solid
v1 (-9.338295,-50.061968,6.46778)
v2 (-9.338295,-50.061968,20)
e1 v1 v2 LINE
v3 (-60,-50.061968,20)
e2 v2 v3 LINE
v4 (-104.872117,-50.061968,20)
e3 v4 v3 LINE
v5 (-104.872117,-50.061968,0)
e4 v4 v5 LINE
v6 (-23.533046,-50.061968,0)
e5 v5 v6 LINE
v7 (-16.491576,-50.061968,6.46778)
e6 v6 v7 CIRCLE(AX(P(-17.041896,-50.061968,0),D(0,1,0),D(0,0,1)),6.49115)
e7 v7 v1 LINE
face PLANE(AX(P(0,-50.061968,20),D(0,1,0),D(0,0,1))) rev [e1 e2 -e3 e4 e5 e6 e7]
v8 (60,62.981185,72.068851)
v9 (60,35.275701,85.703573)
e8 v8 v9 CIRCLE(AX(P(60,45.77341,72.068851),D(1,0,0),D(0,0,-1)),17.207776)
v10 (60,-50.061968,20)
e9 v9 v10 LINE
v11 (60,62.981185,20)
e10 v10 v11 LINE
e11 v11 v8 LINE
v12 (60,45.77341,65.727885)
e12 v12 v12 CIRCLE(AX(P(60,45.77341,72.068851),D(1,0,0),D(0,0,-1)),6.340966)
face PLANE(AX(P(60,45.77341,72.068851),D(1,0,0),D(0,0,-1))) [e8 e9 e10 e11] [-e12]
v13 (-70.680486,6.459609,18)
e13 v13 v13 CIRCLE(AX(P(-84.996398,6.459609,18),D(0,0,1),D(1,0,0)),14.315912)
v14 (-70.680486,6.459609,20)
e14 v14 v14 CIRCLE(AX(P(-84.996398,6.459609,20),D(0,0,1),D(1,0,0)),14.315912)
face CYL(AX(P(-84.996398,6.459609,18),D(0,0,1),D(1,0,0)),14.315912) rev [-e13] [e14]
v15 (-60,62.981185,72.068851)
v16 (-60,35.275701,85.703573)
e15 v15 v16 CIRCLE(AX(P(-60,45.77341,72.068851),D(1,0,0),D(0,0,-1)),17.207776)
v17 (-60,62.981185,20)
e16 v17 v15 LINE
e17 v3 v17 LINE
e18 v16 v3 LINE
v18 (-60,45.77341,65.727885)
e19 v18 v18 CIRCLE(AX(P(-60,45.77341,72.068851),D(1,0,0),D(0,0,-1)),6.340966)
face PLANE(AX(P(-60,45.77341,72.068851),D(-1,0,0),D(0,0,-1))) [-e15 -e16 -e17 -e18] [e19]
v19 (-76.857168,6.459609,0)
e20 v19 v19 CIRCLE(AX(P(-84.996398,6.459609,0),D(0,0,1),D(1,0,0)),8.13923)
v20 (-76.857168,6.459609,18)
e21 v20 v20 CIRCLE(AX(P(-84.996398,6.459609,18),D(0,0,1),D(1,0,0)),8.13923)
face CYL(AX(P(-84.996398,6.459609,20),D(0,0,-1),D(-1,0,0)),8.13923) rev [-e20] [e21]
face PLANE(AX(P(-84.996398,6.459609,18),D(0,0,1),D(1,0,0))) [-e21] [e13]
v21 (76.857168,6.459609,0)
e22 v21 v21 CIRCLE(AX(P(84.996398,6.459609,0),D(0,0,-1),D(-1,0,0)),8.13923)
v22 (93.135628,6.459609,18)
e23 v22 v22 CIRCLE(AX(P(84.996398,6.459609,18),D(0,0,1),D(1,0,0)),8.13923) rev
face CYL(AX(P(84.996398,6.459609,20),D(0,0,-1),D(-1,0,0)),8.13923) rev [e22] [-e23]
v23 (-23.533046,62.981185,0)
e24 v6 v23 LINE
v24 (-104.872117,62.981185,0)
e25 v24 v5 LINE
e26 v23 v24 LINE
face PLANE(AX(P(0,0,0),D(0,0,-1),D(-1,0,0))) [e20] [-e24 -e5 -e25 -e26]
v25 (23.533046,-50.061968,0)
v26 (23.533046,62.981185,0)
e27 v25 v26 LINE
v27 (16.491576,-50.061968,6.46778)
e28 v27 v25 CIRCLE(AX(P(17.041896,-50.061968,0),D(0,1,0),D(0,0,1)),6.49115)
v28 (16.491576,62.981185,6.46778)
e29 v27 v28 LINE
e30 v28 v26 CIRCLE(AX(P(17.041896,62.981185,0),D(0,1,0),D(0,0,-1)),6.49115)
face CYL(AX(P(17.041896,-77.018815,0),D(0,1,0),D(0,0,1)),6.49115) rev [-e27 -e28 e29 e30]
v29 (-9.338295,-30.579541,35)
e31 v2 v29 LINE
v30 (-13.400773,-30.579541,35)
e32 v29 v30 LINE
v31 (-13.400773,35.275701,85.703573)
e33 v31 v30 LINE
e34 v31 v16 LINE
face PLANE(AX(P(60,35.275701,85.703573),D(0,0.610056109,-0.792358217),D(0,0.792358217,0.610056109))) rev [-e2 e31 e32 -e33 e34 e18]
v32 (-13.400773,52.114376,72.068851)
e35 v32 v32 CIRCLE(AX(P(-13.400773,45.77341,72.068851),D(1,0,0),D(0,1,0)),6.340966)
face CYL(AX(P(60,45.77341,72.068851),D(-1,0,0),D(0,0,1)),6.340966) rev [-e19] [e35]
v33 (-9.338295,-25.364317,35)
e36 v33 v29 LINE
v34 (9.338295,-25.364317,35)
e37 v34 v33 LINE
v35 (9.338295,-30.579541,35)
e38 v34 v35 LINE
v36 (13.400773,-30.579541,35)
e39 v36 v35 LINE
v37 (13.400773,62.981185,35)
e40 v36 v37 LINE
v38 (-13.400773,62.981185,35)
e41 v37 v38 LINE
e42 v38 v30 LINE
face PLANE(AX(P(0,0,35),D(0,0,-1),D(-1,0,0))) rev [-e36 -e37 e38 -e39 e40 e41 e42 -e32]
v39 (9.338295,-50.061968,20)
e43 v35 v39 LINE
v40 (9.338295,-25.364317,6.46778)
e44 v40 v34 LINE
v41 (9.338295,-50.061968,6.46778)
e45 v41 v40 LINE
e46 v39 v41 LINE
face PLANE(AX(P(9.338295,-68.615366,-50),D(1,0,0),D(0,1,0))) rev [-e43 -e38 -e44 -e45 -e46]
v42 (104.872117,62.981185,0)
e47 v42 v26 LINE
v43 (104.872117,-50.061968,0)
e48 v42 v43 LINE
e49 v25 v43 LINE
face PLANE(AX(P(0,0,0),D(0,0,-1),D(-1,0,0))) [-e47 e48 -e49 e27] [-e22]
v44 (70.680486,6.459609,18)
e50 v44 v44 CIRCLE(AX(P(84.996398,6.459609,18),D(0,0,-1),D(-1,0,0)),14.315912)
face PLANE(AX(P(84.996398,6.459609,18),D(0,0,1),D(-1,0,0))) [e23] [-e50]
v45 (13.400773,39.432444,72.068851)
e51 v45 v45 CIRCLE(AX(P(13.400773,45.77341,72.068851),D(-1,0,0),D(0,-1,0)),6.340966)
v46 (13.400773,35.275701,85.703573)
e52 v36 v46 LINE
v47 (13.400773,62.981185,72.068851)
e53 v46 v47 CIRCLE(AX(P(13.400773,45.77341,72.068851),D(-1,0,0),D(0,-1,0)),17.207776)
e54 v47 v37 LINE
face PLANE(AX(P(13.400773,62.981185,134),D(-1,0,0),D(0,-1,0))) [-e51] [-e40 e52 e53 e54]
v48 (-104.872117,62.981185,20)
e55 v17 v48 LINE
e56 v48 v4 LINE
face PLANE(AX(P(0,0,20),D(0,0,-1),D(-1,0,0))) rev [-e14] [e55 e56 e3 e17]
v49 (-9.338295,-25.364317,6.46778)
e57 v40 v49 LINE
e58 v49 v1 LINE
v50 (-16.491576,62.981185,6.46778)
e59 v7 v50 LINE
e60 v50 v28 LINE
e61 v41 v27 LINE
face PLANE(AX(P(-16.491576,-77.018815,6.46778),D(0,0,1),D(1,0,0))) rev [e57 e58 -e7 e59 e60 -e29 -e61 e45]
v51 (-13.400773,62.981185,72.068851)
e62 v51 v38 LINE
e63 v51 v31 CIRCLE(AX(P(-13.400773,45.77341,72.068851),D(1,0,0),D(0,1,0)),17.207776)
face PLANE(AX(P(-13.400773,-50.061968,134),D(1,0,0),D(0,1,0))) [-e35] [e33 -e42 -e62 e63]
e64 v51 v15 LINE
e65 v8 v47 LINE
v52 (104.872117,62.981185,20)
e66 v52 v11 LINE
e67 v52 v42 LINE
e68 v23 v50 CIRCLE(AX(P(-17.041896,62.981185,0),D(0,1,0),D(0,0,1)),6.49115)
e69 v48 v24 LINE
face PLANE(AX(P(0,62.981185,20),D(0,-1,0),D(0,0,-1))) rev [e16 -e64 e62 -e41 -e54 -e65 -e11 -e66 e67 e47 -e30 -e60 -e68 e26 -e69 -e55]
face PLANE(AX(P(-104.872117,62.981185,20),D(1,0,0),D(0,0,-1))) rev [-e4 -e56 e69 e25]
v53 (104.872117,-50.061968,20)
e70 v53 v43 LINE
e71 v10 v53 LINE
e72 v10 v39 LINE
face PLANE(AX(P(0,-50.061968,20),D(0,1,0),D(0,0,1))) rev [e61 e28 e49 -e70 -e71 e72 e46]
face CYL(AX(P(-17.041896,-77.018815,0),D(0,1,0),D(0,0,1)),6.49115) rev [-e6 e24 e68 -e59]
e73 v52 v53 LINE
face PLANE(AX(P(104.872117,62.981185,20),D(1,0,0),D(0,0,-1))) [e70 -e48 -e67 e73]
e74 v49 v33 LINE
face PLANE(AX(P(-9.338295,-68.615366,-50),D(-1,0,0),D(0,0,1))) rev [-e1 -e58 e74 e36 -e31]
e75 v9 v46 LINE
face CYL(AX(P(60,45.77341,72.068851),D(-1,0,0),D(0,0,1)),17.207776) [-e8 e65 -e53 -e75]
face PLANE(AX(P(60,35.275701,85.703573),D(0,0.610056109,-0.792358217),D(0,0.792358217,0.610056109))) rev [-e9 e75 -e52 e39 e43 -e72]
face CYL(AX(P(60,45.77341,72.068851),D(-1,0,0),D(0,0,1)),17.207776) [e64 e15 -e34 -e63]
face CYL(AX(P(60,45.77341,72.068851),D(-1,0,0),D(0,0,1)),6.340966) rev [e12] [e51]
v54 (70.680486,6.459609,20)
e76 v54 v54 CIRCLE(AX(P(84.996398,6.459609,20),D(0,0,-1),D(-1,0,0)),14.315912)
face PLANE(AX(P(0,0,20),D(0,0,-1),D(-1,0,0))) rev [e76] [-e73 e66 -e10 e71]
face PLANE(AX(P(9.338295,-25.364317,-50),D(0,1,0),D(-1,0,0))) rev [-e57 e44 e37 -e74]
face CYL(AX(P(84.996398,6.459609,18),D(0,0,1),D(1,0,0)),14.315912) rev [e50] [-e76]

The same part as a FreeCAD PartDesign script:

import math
import FreeCAD as App
import Part
import Sketcher

V = App.Vector

doc = App.newDocument("Part")
body = doc.addObject("PartDesign::Body", "Body")

sketch1 = body.newObject("Sketcher::SketchObject", "Sketch")
sketch1.AttachmentSupport = (doc.getObject("XY_Plane"), [""])
sketch1.MapMode = "FlatFace"
sketch1.addGeometry([
    Part.LineSegment(V(-105, 63, 0), V(-105, -50, 0)),
    Part.LineSegment(V(-105, -50, 0), V(0, -50, 0)),
    Part.LineSegment(V(0, -50, 0), V(0, 63, 0)),
    Part.LineSegment(V(0, 63, 0), V(-105, 63, 0)),
    Part.Circle(V(-85, 6, 0), V(0, 0, 1), 8),
], False)
sketch1.addConstraint([
    Sketcher.Constraint("Coincident", 0, 2, 1, 1),
    Sketcher.Constraint("Coincident", 1, 2, 2, 1),
    Sketcher.Constraint("Coincident", 2, 2, 3, 1),
    Sketcher.Constraint("Coincident", 3, 2, 0, 1),
    Sketcher.Constraint("Vertical", 0),
    Sketcher.Constraint("Horizontal", 1),
    Sketcher.Constraint("Vertical", 2),
    Sketcher.Constraint("Horizontal", 3),
    Sketcher.Constraint("PointOnObject", 1, 2, -2),
    Sketcher.Constraint("Diameter", 4, 16.27846),
    Sketcher.Constraint("DistanceX", 4, 3, -1, 1, 84.996398),
    Sketcher.Constraint("DistanceX", 1, 1, 1, 2, 104.872117),
    Sketcher.Constraint("DistanceY", 0, 2, 0, 1, 113.043153),
    Sketcher.Constraint("DistanceY", -1, 1, 4, 3, 6.459609),
    Sketcher.Constraint("DistanceY", 0, 2, -1, 1, 50.061968),
])
pad1 = body.newObject("PartDesign::Pad", "Pad")
pad1.Profile = sketch1
pad1.Length = 20

sketch2 = body.newObject("Sketcher::SketchObject", "Sketch001")
sketch2.AttachmentSupport = (doc.getObject("XY_Plane"), [""])
sketch2.MapMode = "FlatFace"
sketch2.AttachmentOffset = App.Placement(V(0, 0, 20), App.Rotation())
sketch2.addGeometry(Part.Circle(V(-85, 6, 0), V(0, 0, 1), 14), False)
sketch2.addConstraint([
    Sketcher.Constraint("Diameter", 0, 28.631825),
    Sketcher.Constraint("DistanceX", 0, 3, -1, 1, 84.996398),
    Sketcher.Constraint("DistanceY", -1, 1, 0, 3, 6.459609),
])
pocket1 = body.newObject("PartDesign::Pocket", "Pocket")
pocket1.Profile = sketch2
pocket1.Length = 2
doc.recompute()

mirrored = body.newObject("PartDesign::Mirrored", "Mirrored")
mirrored.Originals = [pad1, pocket1]
mirrored.MirrorPlane = (doc.getObject("YZ_Plane"), [""])
body.Tip = mirrored

sketch3 = body.newObject("Sketcher::SketchObject", "Sketch002")
sketch3.AttachmentSupport = (doc.getObject("XZ_Plane"), [""])
sketch3.MapMode = "FlatFace"
sketch3.AttachmentOffset = App.Placement(V(0, 0, -62.981185), App.Rotation())
sketch3.addGeometry([
    Part.LineSegment(V(24, 0, 0), V(-24, 0, 0)),
    Part.ArcOfCircle(Part.Circle(V(-17, 0, 0), V(0, 0, 1), 6), math.radians(85), math.radians(180)),
    Part.LineSegment(V(-16, 6, 0), V(16, 6, 0)),
    Part.ArcOfCircle(Part.Circle(V(17, 0, 0), V(0, 0, 1), 6), math.radians(0), math.radians(95)),
], False)
sketch3.addConstraint([
    Sketcher.Constraint("Coincident", 0, 2, 1, 2),
    Sketcher.Constraint("Coincident", 1, 1, 2, 1),
    Sketcher.Constraint("Coincident", 2, 2, 3, 2),
    Sketcher.Constraint("Coincident", 3, 1, 0, 1),
    Sketcher.Constraint("Horizontal", 0),
    Sketcher.Constraint("Horizontal", 2),
    Sketcher.Constraint("Equal", 1, 3),
    Sketcher.Constraint("Symmetric", 1, 3, 3, 3, -1, 1),
    Sketcher.Constraint("PointOnObject", 1, 3, -1),
    Sketcher.Constraint("PointOnObject", 0, 2, -1),
    Sketcher.Constraint("Radius", 1, 6.49115),
    Sketcher.Constraint("DistanceX", 2, 1, 2, 2, 32.983151),
    Sketcher.Constraint("DistanceX", 0, 2, 0, 1, 47.066093),
])
pocket2 = body.newObject("PartDesign::Pocket", "Pocket001")
pocket2.Profile = sketch3
pocket2.Length = 140
pocket2.Reversed = True

sketch4 = body.newObject("Sketcher::SketchObject", "Sketch003")
sketch4.AttachmentSupport = (doc.getObject("YZ_Plane"), [""])
sketch4.MapMode = "FlatFace"
sketch4.addGeometry([
    Part.LineSegment(V(63, 20, 0), V(63, 72, 0)),
    Part.ArcOfCircle(Part.Circle(V(46, 72, 0), V(0, 0, 1), 17), math.radians(0), math.radians(128)),
    Part.LineSegment(V(35, 86, 0), V(-50, 20, 0)),
    Part.LineSegment(V(-50, 20, 0), V(63, 20, 0)),
    Part.Circle(V(46, 72, 0), V(0, 0, 1), 6),
], False)
sketch4.addConstraint([
    Sketcher.Constraint("Tangent", 0, 2, 1, 1),
    Sketcher.Constraint("Tangent", 1, 2, 2, 1),
    Sketcher.Constraint("Coincident", 2, 2, 3, 1),
    Sketcher.Constraint("Coincident", 3, 2, 0, 1),
    Sketcher.Constraint("Vertical", 0),
    Sketcher.Constraint("Horizontal", 3),
    Sketcher.Constraint("Coincident", 4, 3, 1, 3),
    Sketcher.Constraint("DistanceY", -1, 1, 2, 2, 20.0),
    Sketcher.Constraint("Diameter", 4, 12.681932),
    Sketcher.Constraint("Radius", 1, 17.207776),
    Sketcher.Constraint("DistanceY", 0, 1, 0, 2, 52.068851),
    Sketcher.Constraint("DistanceX", -1, 1, 1, 2, 35.275701),
    Sketcher.Constraint("Distance", 2, 107.700869),
])
pad2 = body.newObject("PartDesign::Pad", "Pad001")
pad2.Profile = sketch4
pad2.Length = 60
doc.recompute()

mirrored2 = body.newObject("PartDesign::Mirrored", "Mirrored001")
mirrored2.Originals = [pad2]
mirrored2.MirrorPlane = (doc.getObject("YZ_Plane"), [""])
body.Tip = mirrored2

sketch5 = body.newObject("Sketcher::SketchObject", "Sketch004")
sketch5.AttachmentSupport = (doc.getObject("XY_Plane"), [""])
sketch5.MapMode = "FlatFace"
sketch5.AttachmentOffset = App.Placement(V(0, 0, 35), App.Rotation())
sketch5.addGeometry([
    Part.LineSegment(V(-13, 63, 0), V(-13, -50, 0)),
    Part.LineSegment(V(-13, -50, 0), V(13, -50, 0)),
    Part.LineSegment(V(13, -50, 0), V(13, 63, 0)),
    Part.LineSegment(V(13, 63, 0), V(-13, 63, 0)),
], False)
sketch5.addConstraint([
    Sketcher.Constraint("Coincident", 0, 2, 1, 1),
    Sketcher.Constraint("Coincident", 1, 2, 2, 1),
    Sketcher.Constraint("Coincident", 2, 2, 3, 1),
    Sketcher.Constraint("Coincident", 3, 2, 0, 1),
    Sketcher.Constraint("Vertical", 0),
    Sketcher.Constraint("Horizontal", 1),
    Sketcher.Constraint("Vertical", 2),
    Sketcher.Constraint("Horizontal", 3),
    Sketcher.Constraint("DistanceX", 1, 1, 1, 2, 26.801546),
    Sketcher.Constraint("DistanceY", 0, 2, 0, 1, 113.043153),
    Sketcher.Constraint("DistanceX", 0, 2, -1, 1, 13.400773),
    Sketcher.Constraint("DistanceY", 0, 2, -1, 1, 50.061968),
])
pocket3 = body.newObject("PartDesign::Pocket", "Pocket002")
pocket3.Profile = sketch5
pocket3.Length = 99
pocket3.Reversed = True

sketch6 = body.newObject("Sketcher::SketchObject", "Sketch005")
sketch6.AttachmentSupport = (doc.getObject("XY_Plane"), [""])
sketch6.MapMode = "FlatFace"
sketch6.AttachmentOffset = App.Placement(V(0, 0, 35), App.Rotation())
sketch6.addGeometry([
    Part.LineSegment(V(-9, -25, 0), V(-9, -69, 0)),
    Part.LineSegment(V(-9, -69, 0), V(9, -69, 0)),
    Part.LineSegment(V(9, -69, 0), V(9, -25, 0)),
    Part.LineSegment(V(9, -25, 0), V(-9, -25, 0)),
], False)
sketch6.addConstraint([
    Sketcher.Constraint("Coincident", 0, 2, 1, 1),
    Sketcher.Constraint("Coincident", 1, 2, 2, 1),
    Sketcher.Constraint("Coincident", 2, 2, 3, 1),
    Sketcher.Constraint("Coincident", 3, 2, 0, 1),
    Sketcher.Constraint("Vertical", 0),
    Sketcher.Constraint("Horizontal", 1),
    Sketcher.Constraint("Vertical", 2),
    Sketcher.Constraint("Horizontal", 3),
    Sketcher.Constraint("DistanceX", 1, 1, 1, 2, 18.676589),
    Sketcher.Constraint("DistanceY", 0, 2, 0, 1, 43.251049),
    Sketcher.Constraint("DistanceX", 0, 2, -1, 1, 9.338295),
    Sketcher.Constraint("DistanceY", 0, 2, -1, 1, 68.615366),
])
pocket4 = body.newObject("PartDesign::Pocket", "Pocket003")
pocket4.Profile = sketch6
pocket4.Length = 85

doc.recompute()
